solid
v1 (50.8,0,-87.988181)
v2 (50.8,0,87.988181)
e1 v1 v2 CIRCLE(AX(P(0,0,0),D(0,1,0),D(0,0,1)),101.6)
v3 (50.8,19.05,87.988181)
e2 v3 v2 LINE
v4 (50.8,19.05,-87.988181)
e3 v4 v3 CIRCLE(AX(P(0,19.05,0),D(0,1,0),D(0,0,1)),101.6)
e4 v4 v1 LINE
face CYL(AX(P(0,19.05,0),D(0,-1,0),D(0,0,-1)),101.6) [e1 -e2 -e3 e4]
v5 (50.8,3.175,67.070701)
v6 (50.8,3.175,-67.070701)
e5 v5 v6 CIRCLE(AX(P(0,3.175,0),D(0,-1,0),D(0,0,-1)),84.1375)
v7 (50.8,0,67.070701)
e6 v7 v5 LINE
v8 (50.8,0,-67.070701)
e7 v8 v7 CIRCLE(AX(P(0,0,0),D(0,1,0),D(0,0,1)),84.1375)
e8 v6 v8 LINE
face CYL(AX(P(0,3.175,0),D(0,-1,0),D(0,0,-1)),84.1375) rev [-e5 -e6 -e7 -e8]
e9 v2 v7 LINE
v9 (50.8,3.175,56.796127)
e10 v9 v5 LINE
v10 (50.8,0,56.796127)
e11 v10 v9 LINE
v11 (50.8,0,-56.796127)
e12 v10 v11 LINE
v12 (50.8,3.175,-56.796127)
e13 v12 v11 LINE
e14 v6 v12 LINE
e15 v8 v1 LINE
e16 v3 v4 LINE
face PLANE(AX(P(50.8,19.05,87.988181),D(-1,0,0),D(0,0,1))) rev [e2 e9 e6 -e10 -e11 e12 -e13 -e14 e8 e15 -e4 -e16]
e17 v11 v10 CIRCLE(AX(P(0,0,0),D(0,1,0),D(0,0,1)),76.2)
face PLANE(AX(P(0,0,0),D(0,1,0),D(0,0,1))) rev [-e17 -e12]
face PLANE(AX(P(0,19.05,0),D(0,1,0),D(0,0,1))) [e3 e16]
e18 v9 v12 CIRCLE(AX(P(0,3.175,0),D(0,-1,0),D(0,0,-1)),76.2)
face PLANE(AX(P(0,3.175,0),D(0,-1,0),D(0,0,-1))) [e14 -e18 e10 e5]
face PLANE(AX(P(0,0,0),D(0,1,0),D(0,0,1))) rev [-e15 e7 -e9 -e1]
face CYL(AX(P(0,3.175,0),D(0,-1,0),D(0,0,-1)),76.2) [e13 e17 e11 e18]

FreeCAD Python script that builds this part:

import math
import FreeCAD as App
import Part
import Sketcher
Q = App.Units.Quantity

doc = App.newDocument("Part")
body = doc.addObject("PartDesign::Body", "Body")

sketch1 = doc.addObject("Sketcher::SketchObject", "Sketch")
body.addObject(sketch1)
sketch1.AttachmentSupport = (doc.XZ_Plane, [""])
sketch1.MapMode = "FlatFace"
sketch1.addGeometry(Part.LineSegment(App.Vector(51, 88, 0), App.Vector(51, -88, 0)), False)
sketch1.addGeometry(Part.ArcOfCircle(Part.Circle(App.Vector(0, 0, 0), App.Vector(0, 0, 1), 102), math.radians(60), math.radians(300)), False)
sketch1.addConstraint(Sketcher.Constraint("Coincident", 0, 1, 1, 1))
sketch1.addConstraint(Sketcher.Constraint("Coincident", 1, 2, 0, 2))
sketch1.addConstraint(Sketcher.Constraint("Vertical", 0))
sketch1.addConstraint(Sketcher.Constraint("Coincident", 1, 3, -1, 1))
sketch1.addConstraint(Sketcher.Constraint("Radius", 1, Q("4 in")))
sketch1.addConstraint(Sketcher.Constraint("DistanceX", -1, 1, 0, 1, Q("2 in")))
pad1 = doc.addObject("PartDesign::Pad", "Pad")
body.addObject(pad1)
pad1.Profile = sketch1
pad1.Length = Q("0.75 in")
pad1.Reversed = True

sketch2 = doc.addObject("Sketcher::SketchObject", "Sketch001")
body.addObject(sketch2)
sketch2.AttachmentSupport = (doc.XZ_Plane, [""])
sketch2.MapMode = "FlatFace"
sketch2.addGeometry(Part.Circle(App.Vector(0, 0, 0), App.Vector(0, 0, 1), 84), False)
sketch2.addGeometry(Part.Circle(App.Vector(0, 0, 0), App.Vector(0, 0, 1), 76), False)
sketch2.addConstraint(Sketcher.Constraint("Coincident", 0, 3, -1, 1))
sketch2.addConstraint(Sketcher.Constraint("Coincident", 1, 3, -1, 1))
sketch2.addConstraint(Sketcher.Constraint("Diameter", 1, Q("6 in")))
sketch2.addConstraint(Sketcher.Constraint("Diameter", 0, Q("6.625 in")))
pocket1 = doc.addObject("PartDesign::Pocket", "Pocket")
body.addObject(pocket1)
pocket1.Profile = sketch2
pocket1.Length = Q("0.125 in")

doc.recompute()
